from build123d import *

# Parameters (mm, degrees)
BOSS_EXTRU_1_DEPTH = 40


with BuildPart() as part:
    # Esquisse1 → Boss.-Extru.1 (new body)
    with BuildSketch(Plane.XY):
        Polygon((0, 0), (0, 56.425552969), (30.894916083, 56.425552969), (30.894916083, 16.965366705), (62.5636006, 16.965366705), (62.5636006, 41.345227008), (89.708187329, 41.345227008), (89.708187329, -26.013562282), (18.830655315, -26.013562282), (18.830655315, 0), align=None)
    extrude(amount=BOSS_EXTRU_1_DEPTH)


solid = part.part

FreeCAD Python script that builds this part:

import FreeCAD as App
import Part
import Sketcher
from FreeCAD import Vector
Q = App.Units.Quantity

doc = App.newDocument("Part")
body = doc.addObject("PartDesign::Body", "Body")

sketch1 = body.newObject("Sketcher::SketchObject", "Sketch")
sketch1.AttachmentSupport = (doc.getObject("XY_Plane"), [""])
sketch1.MapMode = "FlatFace"
sketch1.addGeometry([
    Part.LineSegment(Vector(0, 56.425553, 0), Vector(0, 0, 0)),
    Part.LineSegment(Vector(0, 0, 0), Vector(18.830655, 0, 0)),
    Part.LineSegment(Vector(18.830655, 0, 0), Vector(18.830655, -26.013562, 0)),
    Part.LineSegment(Vector(18.830655, -26.013562, 0), Vector(89.708187, -26.013562, 0)),
    Part.LineSegment(Vector(89.708187, -26.013562, 0), Vector(89.708187, 41.345227, 0)),
    Part.LineSegment(Vector(89.708187, 41.345227, 0), Vector(62.563601, 41.345227, 0)),
    Part.LineSegment(Vector(62.563601, 41.345227, 0), Vector(62.563601, 16.965367, 0)),
    Part.LineSegment(Vector(62.563601, 16.965367, 0), Vector(30.894916, 16.965367, 0)),
    Part.LineSegment(Vector(30.894916, 16.965367, 0), Vector(30.894916, 56.425553, 0)),
    Part.LineSegment(Vector(30.894916, 56.425553, 0), Vector(0, 56.425553, 0)),
], False)
sketch1.addConstraint([
    Sketcher.Constraint("Coincident", 0, 2, 1, 1),
    Sketcher.Constraint("Coincident", 1, 2, 2, 1),
    Sketcher.Constraint("Coincident", 2, 2, 3, 1),
    Sketcher.Constraint("Coincident", 3, 2, 4, 1),
    Sketcher.Constraint("Coincident", 4, 2, 5, 1),
    Sketcher.Constraint("Coincident", 5, 2, 6, 1),
    Sketcher.Constraint("Coincident", 6, 2, 7, 1),
    Sketcher.Constraint("Coincident", 7, 2, 8, 1),
    Sketcher.Constraint("Coincident", 8, 2, 9, 1),
    Sketcher.Constraint("Coincident", 9, 2, 0, 1),
    Sketcher.Constraint("Vertical", 0),
    Sketcher.Constraint("Horizontal", 1),
    Sketcher.Constraint("Vertical", 2),
    Sketcher.Constraint("Horizontal", 3),
    Sketcher.Constraint("Vertical", 4),
    Sketcher.Constraint("Horizontal", 5),
    Sketcher.Constraint("Vertical", 6),
    Sketcher.Constraint("Horizontal", 7),
    Sketcher.Constraint("Vertical", 8),
    Sketcher.Constraint("Horizontal", 9),
    Sketcher.Constraint("Coincident", 0, 2, -1, 1),
    Sketcher.Constraint("DistanceY", 4, 1, 4, 2, Q("67.358789 mm")),
    Sketcher.Constraint("DistanceY", 6, 2, 6, 1, Q("24.37986 mm")),
    Sketcher.Constraint("DistanceX", -1, 1, 5, 2, Q("62.563601 mm")),
    Sketcher.Constraint("DistanceX", 1, 1, 1, 2, Q("18.830655 mm")),
    Sketcher.Constraint("DistanceX", 3, 1, 3, 2, Q("70.877532 mm")),
    Sketcher.Constraint("DistanceX", 7, 2, 7, 1, Q("31.668685 mm")),
    Sketcher.Constraint("DistanceY", 0, 2, 0, 1, Q("56.425553 mm")),
    Sketcher.Constraint("DistanceY", 2, 2, 2, 1, Q("26.013562 mm")),
])
pad1 = body.newObject("PartDesign::Pad", "Pad")
pad1.Profile = sketch1
pad1.Length = 40

doc.recompute()
